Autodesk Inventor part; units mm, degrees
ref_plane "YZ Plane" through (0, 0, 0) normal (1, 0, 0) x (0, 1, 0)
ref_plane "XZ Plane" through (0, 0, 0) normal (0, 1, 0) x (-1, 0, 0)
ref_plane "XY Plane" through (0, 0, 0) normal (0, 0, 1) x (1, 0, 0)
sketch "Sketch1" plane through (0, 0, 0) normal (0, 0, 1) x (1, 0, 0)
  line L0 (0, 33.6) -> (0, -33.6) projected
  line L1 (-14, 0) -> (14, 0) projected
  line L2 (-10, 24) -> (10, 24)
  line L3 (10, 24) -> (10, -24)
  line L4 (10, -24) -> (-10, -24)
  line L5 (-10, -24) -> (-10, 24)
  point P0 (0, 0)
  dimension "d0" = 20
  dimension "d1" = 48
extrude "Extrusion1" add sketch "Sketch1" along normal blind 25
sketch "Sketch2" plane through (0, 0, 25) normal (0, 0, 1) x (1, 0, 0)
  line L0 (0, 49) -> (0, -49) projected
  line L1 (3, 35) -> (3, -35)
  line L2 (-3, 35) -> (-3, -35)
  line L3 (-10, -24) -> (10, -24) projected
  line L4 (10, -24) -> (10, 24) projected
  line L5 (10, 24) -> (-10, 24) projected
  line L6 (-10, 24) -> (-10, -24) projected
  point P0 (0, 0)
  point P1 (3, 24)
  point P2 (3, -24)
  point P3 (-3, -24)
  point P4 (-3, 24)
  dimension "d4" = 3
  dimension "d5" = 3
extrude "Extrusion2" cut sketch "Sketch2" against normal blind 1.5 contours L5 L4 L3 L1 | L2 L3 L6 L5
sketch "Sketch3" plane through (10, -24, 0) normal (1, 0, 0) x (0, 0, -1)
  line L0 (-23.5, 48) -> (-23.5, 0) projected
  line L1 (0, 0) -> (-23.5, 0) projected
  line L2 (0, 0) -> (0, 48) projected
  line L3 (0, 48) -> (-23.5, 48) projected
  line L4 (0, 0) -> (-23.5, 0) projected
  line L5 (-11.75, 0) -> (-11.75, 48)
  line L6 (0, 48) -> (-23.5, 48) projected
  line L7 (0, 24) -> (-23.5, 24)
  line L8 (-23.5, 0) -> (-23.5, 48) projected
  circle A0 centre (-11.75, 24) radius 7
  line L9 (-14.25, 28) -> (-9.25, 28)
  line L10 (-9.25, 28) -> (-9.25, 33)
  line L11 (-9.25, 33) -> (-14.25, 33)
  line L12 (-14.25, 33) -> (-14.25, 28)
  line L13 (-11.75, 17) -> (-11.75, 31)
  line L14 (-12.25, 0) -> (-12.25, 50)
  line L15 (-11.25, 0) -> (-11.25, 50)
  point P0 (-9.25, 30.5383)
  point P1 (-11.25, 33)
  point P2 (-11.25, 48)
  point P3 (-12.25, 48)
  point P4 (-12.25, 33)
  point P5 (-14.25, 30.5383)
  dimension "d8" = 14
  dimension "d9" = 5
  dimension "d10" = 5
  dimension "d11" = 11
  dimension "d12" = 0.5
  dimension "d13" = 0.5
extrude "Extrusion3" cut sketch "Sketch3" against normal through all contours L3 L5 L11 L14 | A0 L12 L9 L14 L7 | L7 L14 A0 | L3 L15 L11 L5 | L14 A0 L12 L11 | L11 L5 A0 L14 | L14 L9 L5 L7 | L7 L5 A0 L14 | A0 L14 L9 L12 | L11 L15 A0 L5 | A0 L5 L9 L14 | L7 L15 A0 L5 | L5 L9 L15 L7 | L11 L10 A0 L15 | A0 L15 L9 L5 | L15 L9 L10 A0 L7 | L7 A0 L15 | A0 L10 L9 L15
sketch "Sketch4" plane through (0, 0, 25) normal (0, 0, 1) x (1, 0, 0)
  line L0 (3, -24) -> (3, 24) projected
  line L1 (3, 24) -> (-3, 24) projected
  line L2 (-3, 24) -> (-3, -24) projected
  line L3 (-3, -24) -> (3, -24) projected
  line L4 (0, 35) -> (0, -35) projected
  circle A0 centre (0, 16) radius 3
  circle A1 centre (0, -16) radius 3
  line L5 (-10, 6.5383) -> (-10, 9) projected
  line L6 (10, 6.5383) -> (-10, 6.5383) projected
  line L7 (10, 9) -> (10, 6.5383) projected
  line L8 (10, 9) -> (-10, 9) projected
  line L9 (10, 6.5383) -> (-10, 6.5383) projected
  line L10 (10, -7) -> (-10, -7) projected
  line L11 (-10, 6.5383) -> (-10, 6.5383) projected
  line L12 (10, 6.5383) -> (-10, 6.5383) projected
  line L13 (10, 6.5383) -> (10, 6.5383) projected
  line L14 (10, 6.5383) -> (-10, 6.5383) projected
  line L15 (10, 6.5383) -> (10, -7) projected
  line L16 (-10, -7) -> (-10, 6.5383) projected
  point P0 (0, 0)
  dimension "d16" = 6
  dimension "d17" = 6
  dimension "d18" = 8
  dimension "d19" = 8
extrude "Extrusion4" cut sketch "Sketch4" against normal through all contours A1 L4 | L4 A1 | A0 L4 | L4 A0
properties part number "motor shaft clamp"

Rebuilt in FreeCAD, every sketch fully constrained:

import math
import FreeCAD as App
import Part
import Sketcher
from FreeCAD import Vector
Q = App.Units.Quantity

doc = App.newDocument("Part")
params = doc.addObject("Spreadsheet::Sheet", "Params")
for row, (alias, value) in enumerate([
    ("sketch1_width", "20 mm"),
    ("sketch1_height", "48 mm"),
    ("pad1_length", "25 mm"),
    ("sketch2_width", "7 mm"),
    ("sketch2_height", "48 mm"),
    ("pocket1_length", "1.5 mm"),
    ("sketch3_radius", "7 mm"),
    ("sketch3_width", "15 mm"),
    ("sketch4_diameter", "6 mm"),
], start=1):
    params.set(f"A{row}", alias)
    params.set(f"B{row}", "=" + value)
    params.setAlias(f"B{row}", alias)

body = doc.addObject("PartDesign::Body", "Body")

# Sketch on XY plane
sketch1 = doc.addObject("Sketcher::SketchObject", "Sketch")
body.addObject(sketch1)
sketch1.AttachmentSupport = (doc.XY_Plane, [""])
sketch1.MapMode = "FlatFace"
sketch1.addGeometry(Part.LineSegment(Vector(10, 24, 0), Vector(-10, 24, 0)), False)
sketch1.addGeometry(Part.LineSegment(Vector(-10, 24, 0), Vector(-10, -24, 0)), False)
sketch1.addGeometry(Part.LineSegment(Vector(-10, -24, 0), Vector(10, -24, 0)), False)
sketch1.addGeometry(Part.LineSegment(Vector(10, -24, 0), Vector(10, 24, 0)), False)
sketch1.addConstraint(Sketcher.Constraint("Coincident", 0, 2, 1, 1))
sketch1.addConstraint(Sketcher.Constraint("Coincident", 1, 2, 2, 1))
sketch1.addConstraint(Sketcher.Constraint("Coincident", 2, 2, 3, 1))
sketch1.addConstraint(Sketcher.Constraint("Coincident", 3, 2, 0, 1))
sketch1.addConstraint(Sketcher.Constraint("Horizontal", 0))
sketch1.addConstraint(Sketcher.Constraint("Vertical", 1))
sketch1.addConstraint(Sketcher.Constraint("Horizontal", 2))
sketch1.addConstraint(Sketcher.Constraint("Vertical", 3))
sketch1.addConstraint(Sketcher.Constraint("Symmetric", 0, 2, 2, 2, -1, 1))
sketch1.addConstraint(Sketcher.Constraint("DistanceX", 0, 2, 0, 1, Q("20 mm")))
sketch1.addConstraint(Sketcher.Constraint("DistanceY", 1, 2, 1, 1, Q("48 mm")))
sketch1.setExpression("Constraints[9]", "Params.sketch1_width")
sketch1.setExpression("Constraints[10]", "Params.sketch1_height")
pad1 = doc.addObject("PartDesign::Pad", "Pad")
body.addObject(pad1)
pad1.Profile = sketch1
pad1.setExpression("Length", "Params.pad1_length")

# Sketch on XY plane
sketch2 = doc.addObject("Sketcher::SketchObject", "Sketch001")
body.addObject(sketch2)
sketch2.AttachmentSupport = (doc.XY_Plane, [""])
sketch2.MapMode = "FlatFace"
sketch2.AttachmentOffset = App.Placement(Vector(0, 0, 25), App.Rotation())
sketch2.addGeometry(Part.LineSegment(Vector(10, 24, 0), Vector(3, 24, 0)), False)
sketch2.addGeometry(Part.LineSegment(Vector(3, 24, 0), Vector(3, -24, 0)), False)
sketch2.addGeometry(Part.LineSegment(Vector(3, -24, 0), Vector(10, -24, 0)), False)
sketch2.addGeometry(Part.LineSegment(Vector(10, -24, 0), Vector(10, 24, 0)), False)
sketch2.addGeometry(Part.LineSegment(Vector(-3, -24, 0), Vector(-3, 24, 0)), False)
sketch2.addGeometry(Part.LineSegment(Vector(-3, 24, 0), Vector(-10, 24, 0)), False)
sketch2.addGeometry(Part.LineSegment(Vector(-10, 24, 0), Vector(-10, -24, 0)), False)
sketch2.addGeometry(Part.LineSegment(Vector(-10, -24, 0), Vector(-3, -24, 0)), False)
sketch2.addConstraint(Sketcher.Constraint("Coincident", 0, 2, 1, 1))
sketch2.addConstraint(Sketcher.Constraint("Coincident", 1, 2, 2, 1))
sketch2.addConstraint(Sketcher.Constraint("Coincident", 2, 2, 3, 1))
sketch2.addConstraint(Sketcher.Constraint("Coincident", 3, 2, 0, 1))
sketch2.addConstraint(Sketcher.Constraint("Coincident", 4, 2, 5, 1))
sketch2.addConstraint(Sketcher.Constraint("Coincident", 5, 2, 6, 1))
sketch2.addConstraint(Sketcher.Constraint("Coincident", 6, 2, 7, 1))
sketch2.addConstraint(Sketcher.Constraint("Coincident", 7, 2, 4, 1))
sketch2.addConstraint(Sketcher.Constraint("Horizontal", 0))
sketch2.addConstraint(Sketcher.Constraint("Vertical", 1))
sketch2.addConstraint(Sketcher.Constraint("Horizontal", 2))
sketch2.addConstraint(Sketcher.Constraint("Vertical", 3))
sketch2.addConstraint(Sketcher.Constraint("Vertical", 4))
sketch2.addConstraint(Sketcher.Constraint("Horizontal", 5))
sketch2.addConstraint(Sketcher.Constraint("Vertical", 6))
sketch2.addConstraint(Sketcher.Constraint("Horizontal", 7))
sketch2.addConstraint(Sketcher.Constraint("Symmetric", 1, 2, 4, 2, -1, 1))
sketch2.addConstraint(Sketcher.Constraint("Symmetric", 3, 2, 6, 2, -1, 1))
sketch2.addConstraint(Sketcher.Constraint("Horizontal", 3, 2, 4, 2))
sketch2.addConstraint(Sketcher.Constraint("DistanceX", -1, 1, 0, 2, Q("3 mm")))
sketch2.addConstraint(Sketcher.Constraint("DistanceX", 0, 2, 0, 1, Q("7 mm")))
sketch2.addConstraint(Sketcher.Constraint("DistanceY", 1, 2, 1, 1, Q("48 mm")))
sketch2.setExpression("Constraints[20]", "Params.sketch2_width")
sketch2.setExpression("Constraints[21]", "Params.sketch2_height")
pocket1 = doc.addObject("PartDesign::Pocket", "Pocket")
body.addObject(pocket1)
pocket1.Profile = sketch2
pocket1.setExpression("Length", "Params.pocket1_length")

# Sketch on YZ plane
sketch3 = doc.addObject("Sketcher::SketchObject", "Sketch002")
body.addObject(sketch3)
sketch3.AttachmentSupport = (doc.YZ_Plane, [""])
sketch3.MapMode = "FlatFace"
sketch3.AttachmentOffset = App.Placement(Vector(0, 0, 10), App.Rotation())
sketch3.addGeometry(Part.LineSegment(Vector(24, 12.25, 0), Vector(9, 12.25, 0)), False)
sketch3.addGeometry(Part.LineSegment(Vector(9, 12.25, 0), Vector(9, 14.25, 0)), False)
sketch3.addGeometry(Part.LineSegment(Vector(9, 14.25, 0), Vector(6.538348, 14.25, 0)), False)
sketch3.addGeometry(Part.ArcOfCircle(Part.Circle(Vector(0, 11.75, 0), Vector(0, 0, 1), 7), math.radians(20.924832), math.radians(339.075168)), False)
sketch3.addGeometry(Part.LineSegment(Vector(6.538348, 9.25, 0), Vector(9, 9.25, 0)), False)
sketch3.addGeometry(Part.LineSegment(Vector(9, 9.25, 0), Vector(9, 11.25, 0)), False)
sketch3.addGeometry(Part.LineSegment(Vector(9, 11.25, 0), Vector(24, 11.25, 0)), False)
sketch3.addGeometry(Part.LineSegment(Vector(24, 11.25, 0), Vector(24, 12.25, 0)), False)
sketch3.addConstraint(Sketcher.Constraint("Coincident", 0, 2, 1, 1))
sketch3.addConstraint(Sketcher.Constraint("Coincident", 1, 2, 2, 1))
sketch3.addConstraint(Sketcher.Constraint("Coincident", 2, 2, 3, 1))
sketch3.addConstraint(Sketcher.Constraint("Coincident", 3, 2, 4, 1))
sketch3.addConstraint(Sketcher.Constraint("Coincident", 4, 2, 5, 1))
sketch3.addConstraint(Sketcher.Constraint("Coincident", 5, 2, 6, 1))
sketch3.addConstraint(Sketcher.Constraint("Coincident", 6, 2, 7, 1))
sketch3.addConstraint(Sketcher.Constraint("Coincident", 7, 2, 0, 1))
sketch3.addConstraint(Sketcher.Constraint("Horizontal", 0))
sketch3.addConstraint(Sketcher.Constraint("Vertical", 1))
sketch3.addConstraint(Sketcher.Constraint("Horizontal", 2))
sketch3.addConstraint(Sketcher.Constraint("Horizontal", 4))
sketch3.addConstraint(Sketcher.Constraint("Vertical", 5))
sketch3.addConstraint(Sketcher.Constraint("Horizontal", 6))
sketch3.addConstraint(Sketcher.Constraint("Vertical", 7))
sketch3.addConstraint(Sketcher.Constraint("PointOnObject", 3, 3, -2))
sketch3.addConstraint(Sketcher.Constraint("Vertical", 2, 2, 3, 2))
sketch3.addConstraint(Sketcher.Constraint("Vertical", 1, 2, 4, 2))
sketch3.addConstraint(Sketcher.Constraint("Equal", 1, 5))
sketch3.addConstraint(Sketcher.Constraint("Radius", 3, Q("7 mm")))
sketch3.addConstraint(Sketcher.Constraint("DistanceY", 3, 2, 2, 2, Q("5 mm")))
sketch3.addConstraint(Sketcher.Constraint("DistanceY", 3, 3, 0, 2, Q("0.5 mm")))
sketch3.addConstraint(Sketcher.Constraint("DistanceX", 0, 2, 0, 1, Q("15 mm")))
sketch3.addConstraint(Sketcher.Constraint("DistanceX", -1, 1, 0, 2, Q("9 mm")))
sketch3.addConstraint(Sketcher.Constraint("DistanceY", -1, 1, 3, 3, Q("11.75 mm")))
sketch3.setExpression("Constraints[19]", "Params.sketch3_radius")
sketch3.setExpression("Constraints[22]", "Params.sketch3_width")
pocket2 = doc.addObject("PartDesign::Pocket", "Pocket001")
body.addObject(pocket2)
pocket2.Profile = sketch3
pocket2.Type = "ThroughAll"

# Sketch on XY plane
sketch4 = doc.addObject("Sketcher::SketchObject", "Sketch003")
body.addObject(sketch4)
sketch4.AttachmentSupport = (doc.XY_Plane, [""])
sketch4.MapMode = "FlatFace"
sketch4.AttachmentOffset = App.Placement(Vector(0, 0, 25), App.Rotation())
sketch4.addGeometry(Part.Circle(Vector(0, -16, 0), Vector(0, 0, 1), 3), False)
sketch4.addGeometry(Part.Circle(Vector(0, 16, 0), Vector(0, 0, 1), 3), False)
sketch4.addConstraint(Sketcher.Constraint("Equal", 0, 1))
sketch4.addConstraint(Sketcher.Constraint("Symmetric", 0, 3, 1, 3, -1, 1))
sketch4.addConstraint(Sketcher.Constraint("PointOnObject", 0, 3, -2))
sketch4.addConstraint(Sketcher.Constraint("Diameter", 0, Q("6 mm")))
sketch4.addConstraint(Sketcher.Constraint("DistanceY", 0, 3, -1, 1, Q("16 mm")))
sketch4.setExpression("Constraints[3]", "Params.sketch4_diameter")
pocket3 = doc.addObject("PartDesign::Pocket", "Pocket002")
body.addObject(pocket3)
pocket3.Profile = sketch4
pocket3.Type = "ThroughAll"

doc.recompute()
